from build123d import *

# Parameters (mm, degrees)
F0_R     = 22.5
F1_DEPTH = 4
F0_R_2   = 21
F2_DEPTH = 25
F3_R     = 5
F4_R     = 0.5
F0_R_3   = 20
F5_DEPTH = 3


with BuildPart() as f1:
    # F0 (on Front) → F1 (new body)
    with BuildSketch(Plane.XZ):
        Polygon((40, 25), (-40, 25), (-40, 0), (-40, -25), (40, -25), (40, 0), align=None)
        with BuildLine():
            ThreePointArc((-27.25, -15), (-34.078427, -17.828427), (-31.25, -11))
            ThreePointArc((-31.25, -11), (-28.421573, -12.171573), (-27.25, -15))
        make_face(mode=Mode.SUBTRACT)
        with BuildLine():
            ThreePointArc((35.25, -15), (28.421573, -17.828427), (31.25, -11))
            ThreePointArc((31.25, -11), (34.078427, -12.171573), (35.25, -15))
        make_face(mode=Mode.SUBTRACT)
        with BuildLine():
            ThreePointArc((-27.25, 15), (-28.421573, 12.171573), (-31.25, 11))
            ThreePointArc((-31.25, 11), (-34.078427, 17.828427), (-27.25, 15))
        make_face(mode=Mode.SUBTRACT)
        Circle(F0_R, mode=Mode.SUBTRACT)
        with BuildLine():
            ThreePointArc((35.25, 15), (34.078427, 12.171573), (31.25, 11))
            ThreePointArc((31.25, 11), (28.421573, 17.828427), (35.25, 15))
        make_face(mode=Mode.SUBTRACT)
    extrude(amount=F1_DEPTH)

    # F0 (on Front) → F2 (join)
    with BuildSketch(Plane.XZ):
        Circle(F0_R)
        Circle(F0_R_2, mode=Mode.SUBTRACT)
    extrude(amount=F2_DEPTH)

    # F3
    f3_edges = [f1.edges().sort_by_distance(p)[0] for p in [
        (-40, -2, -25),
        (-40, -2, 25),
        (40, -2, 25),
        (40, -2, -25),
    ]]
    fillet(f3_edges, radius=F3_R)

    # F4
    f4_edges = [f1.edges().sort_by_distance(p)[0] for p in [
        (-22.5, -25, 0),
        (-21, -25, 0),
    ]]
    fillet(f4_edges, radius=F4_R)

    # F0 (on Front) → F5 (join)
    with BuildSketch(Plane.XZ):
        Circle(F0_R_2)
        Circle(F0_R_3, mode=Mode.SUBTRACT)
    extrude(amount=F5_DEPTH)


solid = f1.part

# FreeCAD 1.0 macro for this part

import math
import FreeCAD as App
import Part
import Sketcher
Q = App.Units.Quantity


def edges_at(feature, points):
    """Names of the edges that pass closest to the given points."""
    edges = feature.Shape.Edges
    near = lambda p: min(range(len(edges)), key=lambda i: edges[i].distToShape(Part.Vertex(*p))[0])
    return sorted({f"Edge{near(p) + 1}" for p in points})


def add_polygon(sketch, points):
    """Adds a closed chain of lines whose ends are joined by coincident constraints."""
    first, n = sketch.GeometryCount, len(points)
    for a, b in zip(points, points[1:] + points[:1]):
        sketch.addGeometry(Part.LineSegment(App.Vector(*a, 0), App.Vector(*b, 0)), False)
    for i in range(n):
        sketch.addConstraint(Sketcher.Constraint("Coincident", first + i, 2, first + (i + 1) % n, 1))

doc = App.newDocument("Part")
body = doc.addObject("PartDesign::Body", "Body")

sketch1 = doc.addObject("Sketcher::SketchObject", "Sketch")
body.addObject(sketch1)
sketch1.AttachmentSupport = (doc.XZ_Plane, [""])
sketch1.MapMode = "FlatFace"
add_polygon(sketch1, [(40, 25), (-40, 25), (-40, -25), (40, -25)])
sketch1.addGeometry(Part.ArcOfCircle(Part.Circle(App.Vector(-31.25, -15, 0), App.Vector(0, 0, 1), 4), math.radians(0.000006), math.radians(89.999994)), False)
sketch1.addGeometry(Part.ArcOfCircle(Part.Circle(App.Vector(-31.25, -15, 0), App.Vector(0, 0, 1), 4), math.radians(90.000001), math.radians(359.999999)), False)
sketch1.addGeometry(Part.ArcOfCircle(Part.Circle(App.Vector(31.25, -15, 0), App.Vector(0, 0, 1), 4), math.radians(0.000006), math.radians(89.999994)), False)
sketch1.addGeometry(Part.ArcOfCircle(Part.Circle(App.Vector(31.25, -15, 0), App.Vector(0, 0, 1), 4), math.radians(90.000001), math.radians(359.999999)), False)
sketch1.addGeometry(Part.Circle(App.Vector(0, 0, 0), App.Vector(0, 0, 1), 22.5), False)
sketch1.addGeometry(Part.ArcOfCircle(Part.Circle(App.Vector(-31.25, 15, 0), App.Vector(0, 0, 1), 4), math.radians(0.000001), math.radians(269.999999)), False)
sketch1.addGeometry(Part.ArcOfCircle(Part.Circle(App.Vector(-31.25, 15, 0), App.Vector(0, 0, 1), 4), math.radians(-89.999994), math.radians(-0.000006)), False)
sketch1.addGeometry(Part.ArcOfCircle(Part.Circle(App.Vector(31.25, 15, 0), App.Vector(0, 0, 1), 4), math.radians(0.000001), math.radians(269.999999)), False)
sketch1.addGeometry(Part.ArcOfCircle(Part.Circle(App.Vector(31.25, 15, 0), App.Vector(0, 0, 1), 4), math.radians(-89.999994), math.radians(-0.000006)), False)
sketch1.addConstraint([
    Sketcher.Constraint("Tangent", 4, 1, 5, 2),
    Sketcher.Constraint("Coincident", 5, 1, 4, 2),
    Sketcher.Constraint("Tangent", 6, 1, 7, 2),
    Sketcher.Constraint("Coincident", 7, 1, 6, 2),
    Sketcher.Constraint("Tangent", 9, 1, 10, 2),
    Sketcher.Constraint("Coincident", 10, 1, 9, 2),
    Sketcher.Constraint("Tangent", 11, 1, 12, 2),
    Sketcher.Constraint("Coincident", 12, 1, 11, 2),
    Sketcher.Constraint("Horizontal", 0),
    Sketcher.Constraint("Vertical", 1),
    Sketcher.Constraint("Horizontal", 2),
    Sketcher.Constraint("Vertical", 3),
    Sketcher.Constraint("Coincident", 8, 3, -1, 1),
    Sketcher.Constraint("Equal", 5, 6),
    Sketcher.Constraint("Equal", 7, 9),
    Sketcher.Constraint("Equal", 10, 11),
    Sketcher.Constraint("Symmetric", 6, 3, 9, 3, -1, 1),
    Sketcher.Constraint("Symmetric", 4, 3, 11, 3, -1, 1),
    Sketcher.Constraint("Symmetric", 0, 2, 2, 2, -1, 1),
    Sketcher.Constraint("Symmetric", 4, 3, 6, 3, -2),
    Sketcher.Constraint("Horizontal", 7, 3, 4, 1),
    Sketcher.Constraint("Horizontal", 4, 1, 6, 1),
    Sketcher.Constraint("Horizontal", 12, 3, 9, 1),
    Sketcher.Constraint("Horizontal", 9, 1, 11, 1),
    Sketcher.Constraint("Vertical", 10, 3, 5, 1),
    Sketcher.Constraint("Vertical", 12, 3, 7, 1),
    Sketcher.Constraint("Vertical", 5, 1, 10, 1),
    Sketcher.Constraint("Vertical", 7, 1, 12, 1),
    Sketcher.Constraint("Diameter", 8, Q("45 mm")),
    Sketcher.Constraint("Radius", 4, Q("4 mm")),
    Sketcher.Constraint("DistanceX", 0, 2, 0, 1, Q("80 mm")),
    Sketcher.Constraint("DistanceY", 1, 2, 1, 1, Q("50 mm")),
    Sketcher.Constraint("DistanceY", 4, 3, -1, 1, Q("15 mm")),
    Sketcher.Constraint("DistanceX", 5, 3, 6, 3, Q("62.5 mm")),
])
pad1 = doc.addObject("PartDesign::Pad", "Pad")
body.addObject(pad1)
pad1.Profile = sketch1
pad1.Length = 4

sketch2 = doc.addObject("Sketcher::SketchObject", "Sketch001")
body.addObject(sketch2)
sketch2.AttachmentSupport = (doc.XZ_Plane, [""])
sketch2.MapMode = "FlatFace"
sketch2.addGeometry([
    Part.Circle(App.Vector(0, 0, 0), App.Vector(0, 0, 1), 22.5),
    Part.Circle(App.Vector(0, 0, 0), App.Vector(0, 0, 1), 21),
], False)
sketch2.addConstraint([
    Sketcher.Constraint("Coincident", 0, 3, -1, 1),
    Sketcher.Constraint("Coincident", 1, 3, -1, 1),
    Sketcher.Constraint("Diameter", 0, Q("45 mm")),
    Sketcher.Constraint("Diameter", 1, Q("42 mm")),
])
pad2 = doc.addObject("PartDesign::Pad", "Pad001")
body.addObject(pad2)
pad2.Profile = sketch2
pad2.Length = 25
doc.recompute()

fillet = doc.addObject("PartDesign::Fillet", "Fillet")
body.addObject(fillet)
fillet.Base = (pad2, edges_at(pad2, [
    (-40, -2, -25),
    (-40, -2, 25),
    (40, -2, 25),
    (40, -2, -25),
]))
fillet.Radius = 5
doc.recompute()

fillet2 = doc.addObject("PartDesign::Fillet", "Fillet001")
body.addObject(fillet2)
fillet2.Base = (fillet, edges_at(fillet, [(-22.5, -25, 0), (-21, -25, 0)]))
fillet2.Radius = 0.5

sketch3 = doc.addObject("Sketcher::SketchObject", "Sketch002")
body.addObject(sketch3)
sketch3.AttachmentSupport = (doc.XZ_Plane, [""])
sketch3.MapMode = "FlatFace"
sketch3.addGeometry([
    Part.Circle(App.Vector(0, 0, 0), App.Vector(0, 0, 1), 21),
    Part.Circle(App.Vector(0, 0, 0), App.Vector(0, 0, 1), 20),
], False)
sketch3.addConstraint([
    Sketcher.Constraint("Coincident", 0, 3, -1, 1),
    Sketcher.Constraint("Coincident", 1, 3, -1, 1),
    Sketcher.Constraint("Diameter", 0, Q("42 mm")),
    Sketcher.Constraint("Diameter", 1, Q("40 mm")),
])
pad3 = doc.addObject("PartDesign::Pad", "Pad002")
body.addObject(pad3)
pad3.Profile = sketch3
pad3.Length = 3

doc.recompute()
